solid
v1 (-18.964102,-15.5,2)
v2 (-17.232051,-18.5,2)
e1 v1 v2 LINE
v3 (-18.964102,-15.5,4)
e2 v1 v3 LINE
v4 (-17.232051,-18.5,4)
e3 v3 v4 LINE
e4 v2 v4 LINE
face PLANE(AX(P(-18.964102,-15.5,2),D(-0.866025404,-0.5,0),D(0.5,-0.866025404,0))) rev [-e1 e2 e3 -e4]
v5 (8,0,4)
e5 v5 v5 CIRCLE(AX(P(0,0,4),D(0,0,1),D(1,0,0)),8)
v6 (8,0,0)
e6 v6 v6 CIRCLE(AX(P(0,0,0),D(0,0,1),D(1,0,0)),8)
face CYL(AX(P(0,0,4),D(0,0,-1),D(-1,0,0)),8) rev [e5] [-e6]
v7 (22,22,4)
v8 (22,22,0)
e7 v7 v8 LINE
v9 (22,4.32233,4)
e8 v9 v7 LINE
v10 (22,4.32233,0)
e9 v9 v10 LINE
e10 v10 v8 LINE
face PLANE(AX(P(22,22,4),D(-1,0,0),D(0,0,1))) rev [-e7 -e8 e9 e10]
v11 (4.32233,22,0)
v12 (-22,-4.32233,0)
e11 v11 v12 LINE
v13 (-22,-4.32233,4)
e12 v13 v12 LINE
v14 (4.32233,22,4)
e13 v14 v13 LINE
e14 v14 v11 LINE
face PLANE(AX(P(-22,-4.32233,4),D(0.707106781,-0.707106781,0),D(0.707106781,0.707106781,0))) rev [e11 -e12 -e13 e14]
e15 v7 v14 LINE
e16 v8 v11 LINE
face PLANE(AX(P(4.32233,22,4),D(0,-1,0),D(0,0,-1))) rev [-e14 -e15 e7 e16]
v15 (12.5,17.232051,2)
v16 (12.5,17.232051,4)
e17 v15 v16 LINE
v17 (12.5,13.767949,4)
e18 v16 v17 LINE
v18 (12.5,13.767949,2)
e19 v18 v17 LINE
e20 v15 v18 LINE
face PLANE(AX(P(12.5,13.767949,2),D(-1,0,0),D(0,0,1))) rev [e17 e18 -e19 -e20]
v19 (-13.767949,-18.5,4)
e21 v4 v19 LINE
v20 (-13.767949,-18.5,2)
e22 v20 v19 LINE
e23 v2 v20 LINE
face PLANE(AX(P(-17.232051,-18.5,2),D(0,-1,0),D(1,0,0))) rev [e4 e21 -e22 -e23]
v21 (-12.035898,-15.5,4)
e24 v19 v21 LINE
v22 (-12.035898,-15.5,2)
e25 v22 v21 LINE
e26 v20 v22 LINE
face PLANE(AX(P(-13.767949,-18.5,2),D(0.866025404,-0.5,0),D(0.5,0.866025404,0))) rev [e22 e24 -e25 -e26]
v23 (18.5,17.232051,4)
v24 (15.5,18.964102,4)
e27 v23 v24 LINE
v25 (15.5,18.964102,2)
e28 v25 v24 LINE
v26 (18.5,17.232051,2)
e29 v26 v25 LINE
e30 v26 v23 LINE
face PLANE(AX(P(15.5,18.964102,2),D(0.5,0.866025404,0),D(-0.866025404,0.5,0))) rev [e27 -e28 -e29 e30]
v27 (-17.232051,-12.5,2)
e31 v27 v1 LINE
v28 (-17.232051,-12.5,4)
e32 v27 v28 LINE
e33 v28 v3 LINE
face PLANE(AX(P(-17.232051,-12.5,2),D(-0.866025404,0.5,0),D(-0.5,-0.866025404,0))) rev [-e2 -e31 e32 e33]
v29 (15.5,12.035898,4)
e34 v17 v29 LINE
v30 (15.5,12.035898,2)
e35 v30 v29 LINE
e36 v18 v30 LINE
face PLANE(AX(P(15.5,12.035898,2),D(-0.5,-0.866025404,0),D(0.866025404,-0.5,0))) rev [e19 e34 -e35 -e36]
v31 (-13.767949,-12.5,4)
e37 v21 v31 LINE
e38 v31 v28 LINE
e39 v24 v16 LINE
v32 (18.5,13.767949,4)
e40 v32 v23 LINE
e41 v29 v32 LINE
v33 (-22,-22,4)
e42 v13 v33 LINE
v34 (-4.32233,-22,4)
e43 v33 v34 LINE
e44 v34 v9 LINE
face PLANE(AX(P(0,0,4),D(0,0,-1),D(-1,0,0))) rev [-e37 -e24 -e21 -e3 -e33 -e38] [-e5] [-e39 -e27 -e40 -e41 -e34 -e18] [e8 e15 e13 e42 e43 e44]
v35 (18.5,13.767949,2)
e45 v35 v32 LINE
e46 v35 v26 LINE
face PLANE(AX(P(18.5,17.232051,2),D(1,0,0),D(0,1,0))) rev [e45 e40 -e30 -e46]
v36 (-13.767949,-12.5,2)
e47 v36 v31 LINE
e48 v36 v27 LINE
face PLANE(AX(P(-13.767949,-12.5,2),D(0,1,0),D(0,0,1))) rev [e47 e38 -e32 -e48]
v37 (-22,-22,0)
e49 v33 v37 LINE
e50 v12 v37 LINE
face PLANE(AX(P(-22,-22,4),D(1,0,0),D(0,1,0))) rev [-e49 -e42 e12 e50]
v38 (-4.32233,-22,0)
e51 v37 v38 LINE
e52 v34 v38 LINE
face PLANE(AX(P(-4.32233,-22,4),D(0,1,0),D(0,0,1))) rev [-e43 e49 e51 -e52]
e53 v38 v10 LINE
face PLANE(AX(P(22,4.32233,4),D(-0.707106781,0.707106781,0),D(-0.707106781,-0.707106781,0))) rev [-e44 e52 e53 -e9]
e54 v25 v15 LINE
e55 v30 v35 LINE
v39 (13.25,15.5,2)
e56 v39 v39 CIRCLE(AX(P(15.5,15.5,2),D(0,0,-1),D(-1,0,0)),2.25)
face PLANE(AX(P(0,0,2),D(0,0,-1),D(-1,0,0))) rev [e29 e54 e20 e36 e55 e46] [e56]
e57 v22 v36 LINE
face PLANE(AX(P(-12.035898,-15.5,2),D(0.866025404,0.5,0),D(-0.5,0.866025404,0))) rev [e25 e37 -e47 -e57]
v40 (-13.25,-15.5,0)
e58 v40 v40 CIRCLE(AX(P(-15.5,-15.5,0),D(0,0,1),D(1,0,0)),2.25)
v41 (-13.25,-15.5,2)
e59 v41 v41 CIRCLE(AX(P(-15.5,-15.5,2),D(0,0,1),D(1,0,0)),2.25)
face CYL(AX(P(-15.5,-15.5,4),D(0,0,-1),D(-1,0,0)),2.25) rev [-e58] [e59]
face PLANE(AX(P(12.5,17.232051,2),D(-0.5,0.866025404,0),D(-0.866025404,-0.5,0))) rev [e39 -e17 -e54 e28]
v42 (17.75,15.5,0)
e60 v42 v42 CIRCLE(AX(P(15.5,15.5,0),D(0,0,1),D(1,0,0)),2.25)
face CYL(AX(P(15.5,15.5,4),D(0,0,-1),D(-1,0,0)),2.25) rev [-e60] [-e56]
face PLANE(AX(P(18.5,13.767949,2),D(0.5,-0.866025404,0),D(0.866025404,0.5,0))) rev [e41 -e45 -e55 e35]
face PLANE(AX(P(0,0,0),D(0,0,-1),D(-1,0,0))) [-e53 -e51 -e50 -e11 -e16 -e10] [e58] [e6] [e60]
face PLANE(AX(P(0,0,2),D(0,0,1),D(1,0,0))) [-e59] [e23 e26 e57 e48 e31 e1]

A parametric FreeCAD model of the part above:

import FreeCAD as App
import Part
import Sketcher
Q = App.Units.Quantity


def add_polygon(sketch, points):
    """Adds a closed chain of lines whose ends are joined by coincident constraints."""
    first, n = sketch.GeometryCount, len(points)
    for a, b in zip(points, points[1:] + points[:1]):
        sketch.addGeometry(Part.LineSegment(App.Vector(*a, 0), App.Vector(*b, 0)), False)
    for i in range(n):
        sketch.addConstraint(Sketcher.Constraint("Coincident", first + i, 2, first + (i + 1) % n, 1))

doc = App.newDocument("Part")
params = doc.addObject("Spreadsheet::Sheet", "Params")
for row, (alias, value) in enumerate([
    ("sketch1_diameter", "16 mm"),
    ("sketch1_diameter2", "4.5 mm"),
    ("pad1_length", "4 mm"),
    ("pocket1_length", "2 mm"),
], start=1):
    params.set(f"A{row}", alias)
    params.set(f"B{row}", "=" + value)
    params.setAlias(f"B{row}", alias)

body = doc.addObject("PartDesign::Body", "Body")

sketch1 = body.newObject("Sketcher::SketchObject", "Sketch")
sketch1.AttachmentSupport = (doc.getObject("XY_Plane"), [""])
sketch1.MapMode = "FlatFace"
add_polygon(sketch1, [(-22, -22), (-4.3, -22), (22, 4.3), (22, 22), (4.3, 22), (-22, -4.3)])
sketch1.addGeometry(Part.Circle(App.Vector(-15.5, -15.5, 0), App.Vector(0, 0, 1), 2.2), False)
sketch1.addGeometry(Part.Circle(App.Vector(15.5, 15.5, 0), App.Vector(0, 0, 1), 2.2), False)
sketch1.addGeometry(Part.Circle(App.Vector(0, 0, 0), App.Vector(0, 0, 1), 8), False)
sketch1.addConstraint(Sketcher.Constraint("Horizontal", 0))
sketch1.addConstraint(Sketcher.Constraint("Vertical", 2))
sketch1.addConstraint(Sketcher.Constraint("Horizontal", 3))
sketch1.addConstraint(Sketcher.Constraint("Vertical", 5))
sketch1.addConstraint(Sketcher.Constraint("Coincident", 8, 3, -1, 1))
sketch1.addConstraint(Sketcher.Constraint("Equal", 6, 7))
sketch1.addConstraint(Sketcher.Constraint("Symmetric", 6, 3, 7, 3, -1, 1))
sketch1.addConstraint(Sketcher.Constraint("Symmetric", 0, 2, 3, 2, -1, 1))
sketch1.addConstraint(Sketcher.Constraint("Symmetric", 1, 2, 4, 2, -1, 1))
sketch1.addConstraint(Sketcher.Constraint("Equal", 3, 2))
sketch1.addConstraint(Sketcher.Constraint("Diameter", 8, 16.0))
sketch1.addConstraint(Sketcher.Constraint("Diameter", 6, 4.5))
sketch1.addConstraint(Sketcher.Constraint("Angle", 1, Q("45 deg")))
sketch1.addConstraint(Sketcher.Constraint("DistanceY", 0, 2, -1, 1, 22.0))
sketch1.addConstraint(Sketcher.Constraint("DistanceX", 6, 3, 7, 3, 31.0))
sketch1.addConstraint(Sketcher.Constraint("DistanceY", 6, 3, 7, 3, 31.0))
sketch1.addConstraint(Sketcher.Constraint("DistanceX", 0, 1, 0, 2, 17.67767))
sketch1.setExpression("Constraints[16]", "Params.sketch1_diameter")
sketch1.setExpression("Constraints[17]", "Params.sketch1_diameter2")
pad1 = body.newObject("PartDesign::Pad", "Pad")
pad1.Profile = sketch1
pad1.setExpression("Length", "Params.pad1_length")

sketch2 = body.newObject("Sketcher::SketchObject", "Sketch001")
sketch2.AttachmentSupport = (doc.getObject("XY_Plane"), [""])
sketch2.MapMode = "FlatFace"
sketch2.AttachmentOffset = App.Placement(App.Vector(0, 0, 4), App.Rotation())
add_polygon(sketch2, [(-19, -15.5), (-17.2, -18.5), (-13.8, -18.5), (-12, -15.5), (-13.8, -12.5), (-17.2, -12.5)])
add_polygon(sketch2, [(12.5, 17.2), (12.5, 13.8), (15.5, 12), (18.5, 13.8), (18.5, 17.2), (15.5, 19)])
sketch2.addConstraint(Sketcher.Constraint("Horizontal", 1))
sketch2.addConstraint(Sketcher.Constraint("Horizontal", 4))
sketch2.addConstraint(Sketcher.Constraint("Vertical", 6))
sketch2.addConstraint(Sketcher.Constraint("Vertical", 9))
sketch2.addConstraint(Sketcher.Constraint("Parallel", 0, 3))
sketch2.addConstraint(Sketcher.Constraint("Parallel", 2, 5))
sketch2.addConstraint(Sketcher.Constraint("Perpendicular", 5, 7))
sketch2.addConstraint(Sketcher.Constraint("Perpendicular", 3, 8))
sketch2.addConstraint(Sketcher.Constraint("Parallel", 7, 10))
sketch2.addConstraint(Sketcher.Constraint("Parallel", 8, 11))
sketch2.addConstraint(Sketcher.Constraint("Horizontal", 2, 2, 5, 2))
sketch2.addConstraint(Sketcher.Constraint("Horizontal", 6, 2, 8, 2))
sketch2.addConstraint(Sketcher.Constraint("Horizontal", 9, 2, 11, 2))
sketch2.addConstraint(Sketcher.Constraint("Vertical", 1, 2, 3, 2))
sketch2.addConstraint(Sketcher.Constraint("Vertical", 0, 2, 4, 2))
sketch2.addConstraint(Sketcher.Constraint("Equal", 4, 6))
sketch2.addConstraint(Sketcher.Constraint("Equal", 5, 7))
sketch2.addConstraint(Sketcher.Constraint("Angle", 0, Q("-60 deg")))
sketch2.addConstraint(Sketcher.Constraint("DistanceY", 1, 2, 2, 2, 3.0))
sketch2.addConstraint(Sketcher.Constraint("DistanceY", 0, 2, -1, 1, 18.5))
sketch2.addConstraint(Sketcher.Constraint("DistanceX", -1, 1, 6, 2, 12.5))
sketch2.addConstraint(Sketcher.Constraint("DistanceX", 1, 1, 1, 2, 3.464102))
sketch2.addConstraint(Sketcher.Constraint("DistanceX", 2, 2, -1, 1, 12.035898))
sketch2.addConstraint(Sketcher.Constraint("DistanceY", -1, 1, 7, 2, 12.035898))
pocket1 = body.newObject("PartDesign::Pocket", "Pocket")
pocket1.Profile = sketch2
pocket1.setExpression("Length", "Params.pocket1_length")

doc.recompute()
